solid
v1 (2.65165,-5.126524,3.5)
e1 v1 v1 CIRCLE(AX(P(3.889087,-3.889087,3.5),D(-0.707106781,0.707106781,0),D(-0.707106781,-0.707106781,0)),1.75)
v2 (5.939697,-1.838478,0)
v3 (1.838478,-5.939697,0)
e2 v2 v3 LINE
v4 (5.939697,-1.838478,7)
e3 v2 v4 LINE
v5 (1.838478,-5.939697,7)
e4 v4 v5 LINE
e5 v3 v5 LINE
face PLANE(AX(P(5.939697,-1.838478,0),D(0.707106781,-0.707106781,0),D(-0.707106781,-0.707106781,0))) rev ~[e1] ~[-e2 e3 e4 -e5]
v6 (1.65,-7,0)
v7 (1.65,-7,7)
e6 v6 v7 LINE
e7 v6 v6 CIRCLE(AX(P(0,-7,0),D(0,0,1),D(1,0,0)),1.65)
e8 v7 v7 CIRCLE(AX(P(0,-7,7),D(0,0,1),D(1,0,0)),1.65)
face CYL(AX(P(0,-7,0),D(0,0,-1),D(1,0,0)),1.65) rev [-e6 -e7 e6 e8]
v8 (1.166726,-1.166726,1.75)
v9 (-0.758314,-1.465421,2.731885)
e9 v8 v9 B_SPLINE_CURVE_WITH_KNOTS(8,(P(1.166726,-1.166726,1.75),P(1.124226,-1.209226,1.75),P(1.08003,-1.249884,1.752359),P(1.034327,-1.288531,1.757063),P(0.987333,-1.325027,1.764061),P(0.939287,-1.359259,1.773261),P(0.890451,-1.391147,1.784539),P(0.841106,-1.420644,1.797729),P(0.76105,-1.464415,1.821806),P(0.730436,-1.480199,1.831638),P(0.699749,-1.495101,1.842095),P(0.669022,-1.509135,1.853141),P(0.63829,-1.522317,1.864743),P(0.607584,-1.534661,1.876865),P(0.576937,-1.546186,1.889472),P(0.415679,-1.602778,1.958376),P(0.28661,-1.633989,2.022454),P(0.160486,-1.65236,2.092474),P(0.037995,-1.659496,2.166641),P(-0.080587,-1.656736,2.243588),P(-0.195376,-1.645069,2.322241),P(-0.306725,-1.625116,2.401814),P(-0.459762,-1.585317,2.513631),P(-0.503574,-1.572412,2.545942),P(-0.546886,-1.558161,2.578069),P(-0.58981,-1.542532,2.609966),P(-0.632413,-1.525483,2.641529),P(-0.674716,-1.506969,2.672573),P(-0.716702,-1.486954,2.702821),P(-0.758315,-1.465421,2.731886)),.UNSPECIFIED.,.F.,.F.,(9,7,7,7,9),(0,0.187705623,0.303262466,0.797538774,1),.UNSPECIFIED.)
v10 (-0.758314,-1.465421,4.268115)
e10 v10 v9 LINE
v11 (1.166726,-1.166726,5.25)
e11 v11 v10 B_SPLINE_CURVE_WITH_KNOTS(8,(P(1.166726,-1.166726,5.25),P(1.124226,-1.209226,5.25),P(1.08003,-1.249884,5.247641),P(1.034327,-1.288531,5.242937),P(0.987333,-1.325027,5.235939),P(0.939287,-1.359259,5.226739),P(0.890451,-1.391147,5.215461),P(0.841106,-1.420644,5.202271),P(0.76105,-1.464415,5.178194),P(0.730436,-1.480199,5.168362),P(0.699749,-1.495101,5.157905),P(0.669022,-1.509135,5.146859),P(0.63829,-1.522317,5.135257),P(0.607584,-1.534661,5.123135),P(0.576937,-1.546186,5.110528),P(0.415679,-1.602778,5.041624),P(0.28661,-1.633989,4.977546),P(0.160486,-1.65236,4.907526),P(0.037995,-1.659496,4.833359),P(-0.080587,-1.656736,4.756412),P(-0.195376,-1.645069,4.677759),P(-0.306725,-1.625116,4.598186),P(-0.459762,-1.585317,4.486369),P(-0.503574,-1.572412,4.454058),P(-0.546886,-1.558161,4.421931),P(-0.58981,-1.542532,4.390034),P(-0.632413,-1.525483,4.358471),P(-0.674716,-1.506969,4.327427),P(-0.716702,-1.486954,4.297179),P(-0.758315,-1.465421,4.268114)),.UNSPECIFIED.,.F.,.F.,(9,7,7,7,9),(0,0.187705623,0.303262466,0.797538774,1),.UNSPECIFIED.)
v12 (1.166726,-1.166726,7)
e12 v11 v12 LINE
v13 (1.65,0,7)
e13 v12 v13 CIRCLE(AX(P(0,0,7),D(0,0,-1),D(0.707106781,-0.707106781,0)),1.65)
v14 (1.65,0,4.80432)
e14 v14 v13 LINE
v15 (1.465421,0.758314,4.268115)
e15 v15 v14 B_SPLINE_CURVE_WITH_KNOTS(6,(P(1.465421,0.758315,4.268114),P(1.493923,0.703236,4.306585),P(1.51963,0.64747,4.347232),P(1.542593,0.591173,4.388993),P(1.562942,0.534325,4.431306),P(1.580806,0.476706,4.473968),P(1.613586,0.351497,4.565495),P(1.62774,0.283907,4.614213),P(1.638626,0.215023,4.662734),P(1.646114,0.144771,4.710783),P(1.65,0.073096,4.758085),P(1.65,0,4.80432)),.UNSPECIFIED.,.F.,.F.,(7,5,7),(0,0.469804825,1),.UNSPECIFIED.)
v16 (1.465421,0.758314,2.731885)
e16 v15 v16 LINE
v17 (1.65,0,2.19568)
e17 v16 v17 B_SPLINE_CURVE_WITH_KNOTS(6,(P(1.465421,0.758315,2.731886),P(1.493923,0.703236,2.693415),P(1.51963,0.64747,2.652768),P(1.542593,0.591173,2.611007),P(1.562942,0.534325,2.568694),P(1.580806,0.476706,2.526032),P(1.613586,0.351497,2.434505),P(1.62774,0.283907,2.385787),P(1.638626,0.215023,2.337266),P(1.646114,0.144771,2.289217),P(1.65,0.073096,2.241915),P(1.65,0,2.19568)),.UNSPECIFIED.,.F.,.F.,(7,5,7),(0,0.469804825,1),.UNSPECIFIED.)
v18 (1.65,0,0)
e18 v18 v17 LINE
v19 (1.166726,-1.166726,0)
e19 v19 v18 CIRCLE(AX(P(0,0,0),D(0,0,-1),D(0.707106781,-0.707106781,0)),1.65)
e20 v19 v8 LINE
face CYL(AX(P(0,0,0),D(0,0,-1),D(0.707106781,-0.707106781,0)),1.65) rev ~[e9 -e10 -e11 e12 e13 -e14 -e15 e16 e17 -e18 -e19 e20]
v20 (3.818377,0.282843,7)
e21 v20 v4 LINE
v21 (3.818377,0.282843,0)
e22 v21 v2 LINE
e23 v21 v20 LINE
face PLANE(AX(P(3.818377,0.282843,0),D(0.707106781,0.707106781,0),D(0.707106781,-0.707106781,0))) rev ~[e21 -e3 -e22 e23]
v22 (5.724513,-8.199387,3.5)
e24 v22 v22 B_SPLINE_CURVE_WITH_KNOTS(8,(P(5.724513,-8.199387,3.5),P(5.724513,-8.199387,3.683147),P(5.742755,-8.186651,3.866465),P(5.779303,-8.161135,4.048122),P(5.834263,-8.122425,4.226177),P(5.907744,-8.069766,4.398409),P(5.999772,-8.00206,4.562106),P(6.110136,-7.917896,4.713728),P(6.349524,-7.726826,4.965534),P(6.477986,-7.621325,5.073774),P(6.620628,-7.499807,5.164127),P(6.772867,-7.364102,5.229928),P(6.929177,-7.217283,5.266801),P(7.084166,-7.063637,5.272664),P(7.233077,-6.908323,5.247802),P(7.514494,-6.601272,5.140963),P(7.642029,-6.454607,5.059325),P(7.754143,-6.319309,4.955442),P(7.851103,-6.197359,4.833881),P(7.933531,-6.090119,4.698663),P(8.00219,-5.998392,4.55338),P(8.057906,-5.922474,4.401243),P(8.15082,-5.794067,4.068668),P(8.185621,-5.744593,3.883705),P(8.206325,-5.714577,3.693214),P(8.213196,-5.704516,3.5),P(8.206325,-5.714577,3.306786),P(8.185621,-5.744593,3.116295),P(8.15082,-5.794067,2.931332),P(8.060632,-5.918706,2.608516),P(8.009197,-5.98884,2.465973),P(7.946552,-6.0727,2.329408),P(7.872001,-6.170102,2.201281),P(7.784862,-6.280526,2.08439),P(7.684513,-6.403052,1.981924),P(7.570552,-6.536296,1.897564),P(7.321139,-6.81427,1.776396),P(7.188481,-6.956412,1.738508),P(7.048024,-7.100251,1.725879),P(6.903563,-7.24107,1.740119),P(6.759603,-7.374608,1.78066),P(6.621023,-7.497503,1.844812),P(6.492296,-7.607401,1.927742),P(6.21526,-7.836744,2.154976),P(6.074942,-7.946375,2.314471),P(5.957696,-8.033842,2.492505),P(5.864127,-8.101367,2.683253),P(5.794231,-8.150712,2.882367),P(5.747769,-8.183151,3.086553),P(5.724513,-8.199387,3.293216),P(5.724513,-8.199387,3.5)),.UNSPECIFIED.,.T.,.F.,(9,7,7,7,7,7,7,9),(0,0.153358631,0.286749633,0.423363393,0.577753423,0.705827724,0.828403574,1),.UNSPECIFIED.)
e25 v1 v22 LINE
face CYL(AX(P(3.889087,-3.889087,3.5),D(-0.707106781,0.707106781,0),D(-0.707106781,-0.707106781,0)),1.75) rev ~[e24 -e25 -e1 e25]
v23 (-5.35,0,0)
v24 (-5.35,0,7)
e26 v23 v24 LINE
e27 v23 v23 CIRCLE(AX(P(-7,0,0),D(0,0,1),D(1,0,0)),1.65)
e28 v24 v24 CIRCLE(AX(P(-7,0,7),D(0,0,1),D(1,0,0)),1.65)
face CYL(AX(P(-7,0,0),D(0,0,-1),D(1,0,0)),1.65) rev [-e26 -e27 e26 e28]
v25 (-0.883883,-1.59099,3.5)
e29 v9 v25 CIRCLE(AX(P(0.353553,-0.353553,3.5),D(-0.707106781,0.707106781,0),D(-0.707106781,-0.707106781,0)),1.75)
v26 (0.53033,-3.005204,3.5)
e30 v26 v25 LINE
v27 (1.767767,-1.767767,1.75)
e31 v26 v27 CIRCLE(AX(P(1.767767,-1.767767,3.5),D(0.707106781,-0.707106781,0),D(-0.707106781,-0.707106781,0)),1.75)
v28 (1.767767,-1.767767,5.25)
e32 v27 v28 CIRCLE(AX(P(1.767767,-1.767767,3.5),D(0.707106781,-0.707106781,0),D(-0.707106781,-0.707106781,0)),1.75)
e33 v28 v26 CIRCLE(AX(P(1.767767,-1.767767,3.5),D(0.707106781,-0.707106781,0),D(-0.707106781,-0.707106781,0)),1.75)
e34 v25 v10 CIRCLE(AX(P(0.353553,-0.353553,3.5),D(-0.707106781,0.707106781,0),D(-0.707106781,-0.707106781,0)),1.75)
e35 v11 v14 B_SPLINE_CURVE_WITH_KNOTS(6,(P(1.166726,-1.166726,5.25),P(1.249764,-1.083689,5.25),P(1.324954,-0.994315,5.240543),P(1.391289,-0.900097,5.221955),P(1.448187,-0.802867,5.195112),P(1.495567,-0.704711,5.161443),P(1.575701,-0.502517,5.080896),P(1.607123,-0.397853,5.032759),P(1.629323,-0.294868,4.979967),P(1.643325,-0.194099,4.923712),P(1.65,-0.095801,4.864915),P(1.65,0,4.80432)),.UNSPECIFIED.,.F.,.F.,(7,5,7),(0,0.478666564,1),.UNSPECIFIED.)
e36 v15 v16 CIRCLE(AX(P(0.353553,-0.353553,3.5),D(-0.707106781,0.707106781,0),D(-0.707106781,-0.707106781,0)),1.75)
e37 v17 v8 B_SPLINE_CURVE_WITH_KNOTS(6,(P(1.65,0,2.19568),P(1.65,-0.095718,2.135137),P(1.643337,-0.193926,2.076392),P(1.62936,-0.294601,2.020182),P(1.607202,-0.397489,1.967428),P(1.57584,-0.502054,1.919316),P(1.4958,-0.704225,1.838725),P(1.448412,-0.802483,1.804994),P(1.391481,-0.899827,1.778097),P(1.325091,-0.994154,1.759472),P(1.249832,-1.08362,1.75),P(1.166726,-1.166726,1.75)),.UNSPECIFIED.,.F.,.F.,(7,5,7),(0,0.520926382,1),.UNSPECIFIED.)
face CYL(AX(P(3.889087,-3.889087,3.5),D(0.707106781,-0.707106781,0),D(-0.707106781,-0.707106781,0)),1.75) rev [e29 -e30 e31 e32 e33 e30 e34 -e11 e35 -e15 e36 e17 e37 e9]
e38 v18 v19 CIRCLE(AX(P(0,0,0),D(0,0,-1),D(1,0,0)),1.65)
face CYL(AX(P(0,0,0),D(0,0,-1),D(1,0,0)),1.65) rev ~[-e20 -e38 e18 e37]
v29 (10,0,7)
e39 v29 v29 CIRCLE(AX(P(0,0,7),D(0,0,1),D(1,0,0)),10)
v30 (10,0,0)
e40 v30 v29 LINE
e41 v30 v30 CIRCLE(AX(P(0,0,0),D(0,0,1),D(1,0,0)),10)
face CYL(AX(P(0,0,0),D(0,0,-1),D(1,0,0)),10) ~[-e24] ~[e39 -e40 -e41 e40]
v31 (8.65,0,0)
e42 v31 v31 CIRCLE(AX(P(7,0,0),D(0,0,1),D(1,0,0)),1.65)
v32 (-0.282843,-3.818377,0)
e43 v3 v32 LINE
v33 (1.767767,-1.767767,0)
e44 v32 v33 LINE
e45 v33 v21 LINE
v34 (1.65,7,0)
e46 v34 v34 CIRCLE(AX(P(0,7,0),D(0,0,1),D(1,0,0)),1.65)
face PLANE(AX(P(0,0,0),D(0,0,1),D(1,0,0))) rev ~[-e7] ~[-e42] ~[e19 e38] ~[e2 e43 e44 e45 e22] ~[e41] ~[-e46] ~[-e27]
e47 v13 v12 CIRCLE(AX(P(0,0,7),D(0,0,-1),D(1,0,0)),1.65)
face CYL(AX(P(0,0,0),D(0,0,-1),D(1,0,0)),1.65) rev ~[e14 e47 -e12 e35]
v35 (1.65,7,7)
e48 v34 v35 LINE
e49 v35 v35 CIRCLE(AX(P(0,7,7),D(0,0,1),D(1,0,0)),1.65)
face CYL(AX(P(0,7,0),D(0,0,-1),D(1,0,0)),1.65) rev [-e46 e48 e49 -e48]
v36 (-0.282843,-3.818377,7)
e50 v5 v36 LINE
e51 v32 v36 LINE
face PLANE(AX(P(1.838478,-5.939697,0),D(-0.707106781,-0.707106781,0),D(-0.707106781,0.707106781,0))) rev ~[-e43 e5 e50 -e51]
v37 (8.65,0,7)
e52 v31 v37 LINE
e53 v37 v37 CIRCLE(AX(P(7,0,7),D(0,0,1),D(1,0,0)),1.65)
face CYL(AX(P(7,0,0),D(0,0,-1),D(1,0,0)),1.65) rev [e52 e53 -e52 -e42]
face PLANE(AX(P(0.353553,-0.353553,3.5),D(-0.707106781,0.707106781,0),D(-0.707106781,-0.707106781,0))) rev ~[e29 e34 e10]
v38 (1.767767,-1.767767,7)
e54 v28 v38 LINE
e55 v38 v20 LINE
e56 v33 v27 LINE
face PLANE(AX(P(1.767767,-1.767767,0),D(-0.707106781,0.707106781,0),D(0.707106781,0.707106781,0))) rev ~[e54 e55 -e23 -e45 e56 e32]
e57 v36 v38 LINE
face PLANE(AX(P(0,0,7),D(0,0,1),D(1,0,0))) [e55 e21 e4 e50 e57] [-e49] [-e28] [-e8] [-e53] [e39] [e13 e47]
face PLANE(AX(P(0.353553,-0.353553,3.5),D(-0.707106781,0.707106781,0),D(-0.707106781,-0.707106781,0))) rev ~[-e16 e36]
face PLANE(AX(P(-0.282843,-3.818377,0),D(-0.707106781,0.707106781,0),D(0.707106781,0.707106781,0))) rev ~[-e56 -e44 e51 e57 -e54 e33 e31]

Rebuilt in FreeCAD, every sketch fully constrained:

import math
import FreeCAD as App
import Part
import Sketcher

V = App.Vector
Q = App.Units.Quantity

doc = App.newDocument("Part")
body = doc.addObject("PartDesign::Body", "Body")

# Sketch on XY plane
sketch1 = body.newObject("Sketcher::SketchObject", "Sketch")
sketch1.AttachmentSupport = (doc.getObject("XY_Plane"), [""])
sketch1.MapMode = "FlatFace"
sketch1.addGeometry([
    Part.Circle(V(0, 0, 0), V(0, 0, 1), 10),  # 0
    Part.Circle(V(0, -7, 0), V(0, 0, 1), 1.6),  # 1
    Part.LineSegment(V(1.8, -5.9, 0), V(-0.3, -3.8, 0)),  # 2
    Part.LineSegment(V(-0.3, -3.8, 0), V(1.8, -1.8, 0)),  # 3
    Part.LineSegment(V(1.8, -1.8, 0), V(3.8, 0.3, 0)),  # 4
    Part.LineSegment(V(3.8, 0.3, 0), V(5.9, -1.8, 0)),  # 5
    Part.LineSegment(V(5.9, -1.8, 0), V(1.8, -5.9, 0)),  # 6
    Part.ArcOfCircle(Part.Circle(V(0, 0, 0), V(0, 0, 1), 1.7), math.radians(-45), math.radians(0)),  # 7
    Part.ArcOfCircle(Part.Circle(V(0, 0, 0), V(0, 0, 1), 1.6), math.radians(0), math.radians(315)),  # 8
    Part.Circle(V(-7, 0, 0), V(0, 0, 1), 1.6),  # 9
    Part.Circle(V(0, 7, 0), V(0, 0, 1), 1.6),  # 10
    Part.Circle(V(7, 0, 0), V(0, 0, 1), 1.6),  # 11
], False)
sketch1.addConstraint([
    Sketcher.Constraint("Coincident", 2, 2, 3, 1),
    Sketcher.Constraint("Coincident", 3, 2, 4, 1),
    Sketcher.Constraint("Coincident", 4, 2, 5, 1),
    Sketcher.Constraint("Coincident", 5, 2, 6, 1),
    Sketcher.Constraint("Coincident", 6, 2, 2, 1),
    Sketcher.Constraint("Tangent", 7, 1, 8, 2),
    Sketcher.Constraint("Coincident", 8, 1, 7, 2),
    Sketcher.Constraint("Coincident", 0, 3, -1, 1),
    Sketcher.Constraint("Coincident", 7, 3, -1, 1),
    Sketcher.Constraint("Equal", 1, 7),
    Sketcher.Constraint("Equal", 8, 9),
    Sketcher.Constraint("Equal", 9, 10),
    Sketcher.Constraint("Equal", 10, 11),
    Sketcher.Constraint("Symmetric", 1, 3, 10, 3, -1, 1),
    Sketcher.Constraint("Symmetric", 9, 3, 11, 3, -1, 1),
    Sketcher.Constraint("PointOnObject", 1, 3, -2),
    Sketcher.Constraint("PointOnObject", 9, 3, -1),
    Sketcher.Constraint("PointOnObject", 8, 1, -1),
    Sketcher.Constraint("Perpendicular", 2, 3),
    Sketcher.Constraint("Parallel", 3, 4),
    Sketcher.Constraint("Perpendicular", 4, 5),
    Sketcher.Constraint("Perpendicular", 5, 6),
    Sketcher.Constraint("Equal", 3, 4),
    Sketcher.Constraint("Diameter", 0, 20.0),
    Sketcher.Constraint("Diameter", 1, 3.3),
    Sketcher.Constraint("Angle", 2, Q("135 deg")),
    Sketcher.Constraint("Distance", 2, 3.0),
    Sketcher.Constraint("DistanceY", 1, 3, -1, 1, 7.0),
    Sketcher.Constraint("DistanceX", 9, 3, -1, 1, 7.0),
    Sketcher.Constraint("Distance", 3, 2.9),
    Sketcher.Constraint("DistanceX", 7, 1, 3, 2, 0.601041),
    Sketcher.Constraint("DistanceY", 3, 2, 7, 1, 0.601041),
    Sketcher.Constraint("DistanceX", 2, 2, -1, 1, 0.282843),
])
pad1 = body.newObject("PartDesign::Pad", "Pad")
pad1.Profile = sketch1
pad1.Length = 7

# Sketch on an angled plane
sketch2 = body.newObject("Sketcher::SketchObject", "Sketch001")
sketch2.Placement = App.Placement(V(3.889087, -3.889087, 0), App.Rotation(V(-0.707106781, -0.707106781, 0), V(0, 0, 0.999999999), V(-0.707106781, 0.707106781, 0), "ZXY"))
sketch2.addGeometry(Part.Circle(V(0, 3.5, 0), V(0, 0, 1), 1.8), False)
sketch2.addConstraint([
    Sketcher.Constraint("PointOnObject", 0, 3, -2),
    Sketcher.Constraint("Diameter", 0, 3.5),
    Sketcher.Constraint("DistanceY", -1, 1, 0, 3, 3.5),
])
pocket1 = body.newObject("PartDesign::Pocket", "Pocket")
pocket1.Profile = sketch2
pocket1.Type = "TwoLengths"
pocket1.Length = 25
pocket1.Length2 = 5

doc.recompute()
